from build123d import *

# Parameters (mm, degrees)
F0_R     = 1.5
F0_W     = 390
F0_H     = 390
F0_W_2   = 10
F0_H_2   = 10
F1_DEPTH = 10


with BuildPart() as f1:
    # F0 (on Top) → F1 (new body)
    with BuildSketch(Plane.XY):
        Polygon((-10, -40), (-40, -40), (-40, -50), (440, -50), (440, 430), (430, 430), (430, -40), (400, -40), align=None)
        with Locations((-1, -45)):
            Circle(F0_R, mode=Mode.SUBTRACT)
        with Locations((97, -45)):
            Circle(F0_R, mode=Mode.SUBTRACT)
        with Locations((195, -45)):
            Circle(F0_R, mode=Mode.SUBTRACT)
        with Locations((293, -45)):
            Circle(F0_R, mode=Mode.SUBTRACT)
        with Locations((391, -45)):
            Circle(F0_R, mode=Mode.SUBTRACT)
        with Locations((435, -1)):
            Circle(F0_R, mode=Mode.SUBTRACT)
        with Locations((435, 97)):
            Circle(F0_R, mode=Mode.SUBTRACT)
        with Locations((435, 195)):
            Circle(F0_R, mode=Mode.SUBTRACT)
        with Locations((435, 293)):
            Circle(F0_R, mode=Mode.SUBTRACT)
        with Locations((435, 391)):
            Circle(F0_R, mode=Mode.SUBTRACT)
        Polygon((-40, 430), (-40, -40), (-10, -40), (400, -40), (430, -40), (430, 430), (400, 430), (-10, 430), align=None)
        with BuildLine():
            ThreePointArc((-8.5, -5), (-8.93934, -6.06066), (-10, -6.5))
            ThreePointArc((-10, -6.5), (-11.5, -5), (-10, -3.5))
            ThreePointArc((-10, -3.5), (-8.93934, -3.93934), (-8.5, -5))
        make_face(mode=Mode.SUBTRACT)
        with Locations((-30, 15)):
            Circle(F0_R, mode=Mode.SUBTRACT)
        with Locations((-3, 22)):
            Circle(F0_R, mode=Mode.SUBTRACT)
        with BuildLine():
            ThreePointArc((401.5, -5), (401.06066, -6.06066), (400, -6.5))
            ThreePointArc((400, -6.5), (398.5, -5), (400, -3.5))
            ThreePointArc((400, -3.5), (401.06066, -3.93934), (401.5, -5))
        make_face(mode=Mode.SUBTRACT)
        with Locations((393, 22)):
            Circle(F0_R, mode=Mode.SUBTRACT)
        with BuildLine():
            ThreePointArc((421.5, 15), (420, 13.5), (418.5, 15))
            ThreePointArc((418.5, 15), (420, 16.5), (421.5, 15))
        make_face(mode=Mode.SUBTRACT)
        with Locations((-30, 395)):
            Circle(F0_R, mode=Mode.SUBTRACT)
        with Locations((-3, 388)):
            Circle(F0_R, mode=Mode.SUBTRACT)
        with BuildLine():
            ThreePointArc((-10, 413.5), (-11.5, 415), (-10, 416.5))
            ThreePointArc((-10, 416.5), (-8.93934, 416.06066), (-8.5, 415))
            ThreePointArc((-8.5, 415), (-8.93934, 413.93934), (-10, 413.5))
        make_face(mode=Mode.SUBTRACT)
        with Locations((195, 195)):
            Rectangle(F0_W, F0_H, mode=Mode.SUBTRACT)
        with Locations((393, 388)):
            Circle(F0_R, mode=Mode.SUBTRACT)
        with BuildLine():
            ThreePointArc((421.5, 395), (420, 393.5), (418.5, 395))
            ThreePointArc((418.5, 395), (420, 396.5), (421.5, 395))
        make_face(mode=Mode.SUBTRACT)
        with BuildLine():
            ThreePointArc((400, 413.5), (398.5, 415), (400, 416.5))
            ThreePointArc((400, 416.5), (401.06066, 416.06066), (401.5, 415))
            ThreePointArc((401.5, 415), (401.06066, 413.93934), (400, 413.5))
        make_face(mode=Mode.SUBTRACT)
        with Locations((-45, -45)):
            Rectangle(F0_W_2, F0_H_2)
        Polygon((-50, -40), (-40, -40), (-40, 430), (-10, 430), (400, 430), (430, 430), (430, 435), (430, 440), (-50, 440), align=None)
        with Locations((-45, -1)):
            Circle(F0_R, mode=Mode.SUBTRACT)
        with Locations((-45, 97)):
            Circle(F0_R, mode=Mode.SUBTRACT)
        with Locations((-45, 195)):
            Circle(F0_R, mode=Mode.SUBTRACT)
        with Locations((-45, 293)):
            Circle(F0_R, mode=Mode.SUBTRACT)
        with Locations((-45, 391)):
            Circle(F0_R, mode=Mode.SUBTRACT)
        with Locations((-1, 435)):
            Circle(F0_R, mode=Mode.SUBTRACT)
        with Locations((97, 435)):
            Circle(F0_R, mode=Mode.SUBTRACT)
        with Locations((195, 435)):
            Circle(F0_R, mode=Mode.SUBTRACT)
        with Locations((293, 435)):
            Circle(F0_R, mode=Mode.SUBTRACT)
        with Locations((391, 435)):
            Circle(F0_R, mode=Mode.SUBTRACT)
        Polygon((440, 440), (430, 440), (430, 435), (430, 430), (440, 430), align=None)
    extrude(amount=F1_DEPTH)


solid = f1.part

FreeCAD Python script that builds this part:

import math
import FreeCAD as App
import Part
import Sketcher


def add_polygon(sketch, points):
    """Adds a closed chain of lines whose ends are joined by coincident constraints."""
    first, n = sketch.GeometryCount, len(points)
    for a, b in zip(points, points[1:] + points[:1]):
        sketch.addGeometry(Part.LineSegment(App.Vector(*a, 0), App.Vector(*b, 0)), False)
    for i in range(n):
        sketch.addConstraint(Sketcher.Constraint("Coincident", first + i, 2, first + (i + 1) % n, 1))

doc = App.newDocument("Part")
body = doc.addObject("PartDesign::Body", "Body")

# Sketch on XY plane
sketch1 = doc.addObject("Sketcher::SketchObject", "Sketch")
body.addObject(sketch1)
sketch1.AttachmentSupport = (doc.XY_Plane, [""])
sketch1.MapMode = "FlatFace"
add_polygon(sketch1, [(440, -50), (440, 440), (-50, 440), (-50, -50)])  # lines 0-3
sketch1.addGeometry(Part.Circle(App.Vector(-1, -45, 0), App.Vector(0, 0, 1), 1.5), False)  # 4
sketch1.addGeometry(Part.Circle(App.Vector(-45, -1, 0), App.Vector(0, 0, 1), 1.5), False)  # 5
sketch1.addGeometry(Part.ArcOfCircle(Part.Circle(App.Vector(-10, -5, 0), App.Vector(0, 0, 1), 1.5), math.radians(0), math.radians(90)), False)  # 6
sketch1.addGeometry(Part.ArcOfCircle(Part.Circle(App.Vector(-10, -5, 0), App.Vector(0, 0, 1), 1.5), math.radians(-90), math.radians(0)), False)  # 7
sketch1.addGeometry(Part.ArcOfCircle(Part.Circle(App.Vector(-10, -5, 0), App.Vector(0, 0, 1), 1.5), math.radians(90), math.radians(270)), False)  # 8
sketch1.addGeometry(Part.Circle(App.Vector(-30, 15, 0), App.Vector(0, 0, 1), 1.5), False)  # 9
sketch1.addGeometry(Part.Circle(App.Vector(-3, 22, 0), App.Vector(0, 0, 1), 1.5), False)  # 10
sketch1.addGeometry(Part.Circle(App.Vector(97, -45, 0), App.Vector(0, 0, 1), 1.5), False)  # 11
sketch1.addGeometry(Part.Circle(App.Vector(-45, 97, 0), App.Vector(0, 0, 1), 1.5), False)  # 12
sketch1.addGeometry(Part.Circle(App.Vector(195, -45, 0), App.Vector(0, 0, 1), 1.5), False)  # 13
sketch1.addGeometry(Part.Circle(App.Vector(293, -45, 0), App.Vector(0, 0, 1), 1.5), False)  # 14
sketch1.addGeometry(Part.Circle(App.Vector(391, -45, 0), App.Vector(0, 0, 1), 1.5), False)  # 15
sketch1.addGeometry(Part.ArcOfCircle(Part.Circle(App.Vector(400, -5, 0), App.Vector(0, 0, 1), 1.5), math.radians(0), math.radians(90)), False)  # 16
sketch1.addGeometry(Part.ArcOfCircle(Part.Circle(App.Vector(400, -5, 0), App.Vector(0, 0, 1), 1.5), math.radians(-90), math.radians(0)), False)  # 17
sketch1.addGeometry(Part.ArcOfCircle(Part.Circle(App.Vector(400, -5, 0), App.Vector(0, 0, 1), 1.5), math.radians(90), math.radians(270)), False)  # 18
sketch1.addGeometry(Part.Circle(App.Vector(435, -1, 0), App.Vector(0, 0, 1), 1.5), False)  # 19
sketch1.addGeometry(Part.Circle(App.Vector(393, 22, 0), App.Vector(0, 0, 1), 1.5), False)  # 20
sketch1.addGeometry(Part.Circle(App.Vector(420, 15, 0), App.Vector(0, 0, 1), 1.5), False)  # 21
sketch1.addGeometry(Part.Circle(App.Vector(435, 97, 0), App.Vector(0, 0, 1), 1.5), False)  # 22
sketch1.addGeometry(Part.Circle(App.Vector(-45, 195, 0), App.Vector(0, 0, 1), 1.5), False)  # 23
sketch1.addGeometry(Part.Circle(App.Vector(-45, 293, 0), App.Vector(0, 0, 1), 1.5), False)  # 24
sketch1.addGeometry(Part.Circle(App.Vector(-45, 391, 0), App.Vector(0, 0, 1), 1.5), False)  # 25
sketch1.addGeometry(Part.Circle(App.Vector(-30, 395, 0), App.Vector(0, 0, 1), 1.5), False)  # 26
sketch1.addGeometry(Part.Circle(App.Vector(-3, 388, 0), App.Vector(0, 0, 1), 1.5), False)  # 27
sketch1.addGeometry(Part.ArcOfCircle(Part.Circle(App.Vector(-10, 415, 0), App.Vector(0, 0, 1), 1.5), math.radians(-90), math.radians(0)), False)  # 28
sketch1.addGeometry(Part.ArcOfCircle(Part.Circle(App.Vector(-10, 415, 0), App.Vector(0, 0, 1), 1.5), math.radians(90), math.radians(270)), False)  # 29
sketch1.addGeometry(Part.ArcOfCircle(Part.Circle(App.Vector(-10, 415, 0), App.Vector(0, 0, 1), 1.5), math.radians(0), math.radians(90)), False)  # 30
sketch1.addGeometry(Part.Circle(App.Vector(-1, 435, 0), App.Vector(0, 0, 1), 1.5), False)  # 31
sketch1.addGeometry(Part.Circle(App.Vector(97, 435, 0), App.Vector(0, 0, 1), 1.5), False)  # 32
add_polygon(sketch1, [(390, 0), (0, 0), (0, 390), (390, 390)])  # lines 33-36
sketch1.addGeometry(Part.Circle(App.Vector(435, 195, 0), App.Vector(0, 0, 1), 1.5), False)  # 37
sketch1.addGeometry(Part.Circle(App.Vector(435, 293, 0), App.Vector(0, 0, 1), 1.5), False)  # 38
sketch1.addGeometry(Part.Circle(App.Vector(195, 435, 0), App.Vector(0, 0, 1), 1.5), False)  # 39
sketch1.addGeometry(Part.Circle(App.Vector(293, 435, 0), App.Vector(0, 0, 1), 1.5), False)  # 40
sketch1.addGeometry(Part.Circle(App.Vector(393, 388, 0), App.Vector(0, 0, 1), 1.5), False)  # 41
sketch1.addGeometry(Part.Circle(App.Vector(435, 391, 0), App.Vector(0, 0, 1), 1.5), False)  # 42
sketch1.addGeometry(Part.Circle(App.Vector(420, 395, 0), App.Vector(0, 0, 1), 1.5), False)  # 43
sketch1.addGeometry(Part.ArcOfCircle(Part.Circle(App.Vector(400, 415, 0), App.Vector(0, 0, 1), 1.5), math.radians(-90), math.radians(0)), False)  # 44
sketch1.addGeometry(Part.ArcOfCircle(Part.Circle(App.Vector(400, 415, 0), App.Vector(0, 0, 1), 1.5), math.radians(90), math.radians(270)), False)  # 45
sketch1.addGeometry(Part.ArcOfCircle(Part.Circle(App.Vector(400, 415, 0), App.Vector(0, 0, 1), 1.5), math.radians(0), math.radians(90)), False)  # 46
sketch1.addGeometry(Part.Circle(App.Vector(391, 435, 0), App.Vector(0, 0, 1), 1.5), False)  # 47
sketch1.addConstraint(Sketcher.Constraint("Tangent", 6, 1, 7, 2))
sketch1.addConstraint(Sketcher.Constraint("Tangent", 7, 1, 8, 2))
sketch1.addConstraint(Sketcher.Constraint("Tangent", 8, 1, 6, 2))
sketch1.addConstraint(Sketcher.Constraint("Tangent", 16, 1, 17, 2))
sketch1.addConstraint(Sketcher.Constraint("Tangent", 17, 1, 18, 2))
sketch1.addConstraint(Sketcher.Constraint("Tangent", 18, 1, 16, 2))
sketch1.addConstraint(Sketcher.Constraint("Tangent", 28, 1, 29, 2))
sketch1.addConstraint(Sketcher.Constraint("Tangent", 29, 1, 30, 2))
sketch1.addConstraint(Sketcher.Constraint("Tangent", 30, 1, 28, 2))
sketch1.addConstraint(Sketcher.Constraint("Tangent", 44, 1, 45, 2))
sketch1.addConstraint(Sketcher.Constraint("Tangent", 45, 1, 46, 2))
sketch1.addConstraint(Sketcher.Constraint("Tangent", 46, 1, 44, 2))
sketch1.addConstraint(Sketcher.Constraint("Vertical", 0))
sketch1.addConstraint(Sketcher.Constraint("Horizontal", 1))
sketch1.addConstraint(Sketcher.Constraint("Vertical", 2))
sketch1.addConstraint(Sketcher.Constraint("Horizontal", 3))
sketch1.addConstraint(Sketcher.Constraint("Horizontal", 33))
sketch1.addConstraint(Sketcher.Constraint("Vertical", 34))
sketch1.addConstraint(Sketcher.Constraint("Horizontal", 35))
sketch1.addConstraint(Sketcher.Constraint("Vertical", 36))
sketch1.addConstraint(Sketcher.Constraint("Coincident", 33, 2, -1, 1))
sketch1.addConstraint(Sketcher.Constraint("Equal", 4, 5))
sketch1.addConstraint(Sketcher.Constraint("Equal", 5, 6))
sketch1.addConstraint(Sketcher.Constraint("Equal", 8, 9))
sketch1.addConstraint(Sketcher.Constraint("Equal", 9, 10))
sketch1.addConstraint(Sketcher.Constraint("Equal", 10, 11))
sketch1.addConstraint(Sketcher.Constraint("Equal", 11, 12))
sketch1.addConstraint(Sketcher.Constraint("Equal", 12, 13))
sketch1.addConstraint(Sketcher.Constraint("Equal", 13, 14))
sketch1.addConstraint(Sketcher.Constraint("Equal", 14, 15))
sketch1.addConstraint(Sketcher.Constraint("Equal", 15, 16))
sketch1.addConstraint(Sketcher.Constraint("Equal", 18, 19))
sketch1.addConstraint(Sketcher.Constraint("Equal", 19, 20))
sketch1.addConstraint(Sketcher.Constraint("Equal", 20, 21))
sketch1.addConstraint(Sketcher.Constraint("Equal", 21, 22))
sketch1.addConstraint(Sketcher.Constraint("Equal", 22, 23))
sketch1.addConstraint(Sketcher.Constraint("Equal", 23, 24))
sketch1.addConstraint(Sketcher.Constraint("Equal", 24, 25))
sketch1.addConstraint(Sketcher.Constraint("Equal", 25, 26))
sketch1.addConstraint(Sketcher.Constraint("Equal", 26, 27))
sketch1.addConstraint(Sketcher.Constraint("Equal", 27, 28))
sketch1.addConstraint(Sketcher.Constraint("Equal", 30, 31))
sketch1.addConstraint(Sketcher.Constraint("Equal", 31, 32))
sketch1.addConstraint(Sketcher.Constraint("Equal", 32, 37))
sketch1.addConstraint(Sketcher.Constraint("Equal", 37, 38))
sketch1.addConstraint(Sketcher.Constraint("Equal", 38, 39))
sketch1.addConstraint(Sketcher.Constraint("Equal", 39, 40))
sketch1.addConstraint(Sketcher.Constraint("Equal", 40, 41))
sketch1.addConstraint(Sketcher.Constraint("Equal", 41, 42))
sketch1.addConstraint(Sketcher.Constraint("Equal", 42, 43))
sketch1.addConstraint(Sketcher.Constraint("Equal", 43, 44))
sketch1.addConstraint(Sketcher.Constraint("Equal", 46, 47))
sketch1.addConstraint(Sketcher.Constraint("Horizontal", 4, 3, 11, 3))
sketch1.addConstraint(Sketcher.Constraint("Horizontal", 11, 3, 13, 3))
sketch1.addConstraint(Sketcher.Constraint("Horizontal", 13, 3, 14, 3))
sketch1.addConstraint(Sketcher.Constraint("Horizontal", 14, 3, 15, 3))
sketch1.addConstraint(Sketcher.Constraint("Horizontal", 8, 3, 16, 3))
sketch1.addConstraint(Sketcher.Constraint("Horizontal", 5, 3, 19, 3))
sketch1.addConstraint(Sketcher.Constraint("Horizontal", 10, 3, 20, 3))
sketch1.addConstraint(Sketcher.Constraint("Horizontal", 9, 3, 21, 3))
sketch1.addConstraint(Sketcher.Constraint("Horizontal", 12, 3, 22, 3))
sketch1.addConstraint(Sketcher.Constraint("Horizontal", 31, 3, 32, 3))
sketch1.addConstraint(Sketcher.Constraint("Horizontal", 23, 3, 37, 3))
sketch1.addConstraint(Sketcher.Constraint("Horizontal", 24, 3, 38, 3))
sketch1.addConstraint(Sketcher.Constraint("Horizontal", 32, 3, 39, 3))
sketch1.addConstraint(Sketcher.Constraint("Horizontal", 39, 3, 40, 3))
sketch1.addConstraint(Sketcher.Constraint("Horizontal", 27, 3, 41, 3))
sketch1.addConstraint(Sketcher.Constraint("Horizontal", 25, 3, 42, 3))
sketch1.addConstraint(Sketcher.Constraint("Horizontal", 26, 3, 43, 3))
sketch1.addConstraint(Sketcher.Constraint("Horizontal", 30, 3, 44, 3))
sketch1.addConstraint(Sketcher.Constraint("Horizontal", 40, 3, 47, 3))
sketch1.addConstraint(Sketcher.Constraint("Horizontal", 18, 3, 6, 1))
sketch1.addConstraint(Sketcher.Constraint("Horizontal", 6, 1, 16, 1))
sketch1.addConstraint(Sketcher.Constraint("Horizontal", 46, 3, 30, 1))
sketch1.addConstraint(Sketcher.Constraint("Horizontal", 30, 1, 46, 1))
sketch1.addConstraint(Sketcher.Constraint("Vertical", 5, 3, 12, 3))
sketch1.addConstraint(Sketcher.Constraint("Vertical", 19, 3, 22, 3))
sketch1.addConstraint(Sketcher.Constraint("Vertical", 12, 3, 23, 3))
sketch1.addConstraint(Sketcher.Constraint("Vertical", 23, 3, 24, 3))
sketch1.addConstraint(Sketcher.Constraint("Vertical", 24, 3, 25, 3))
sketch1.addConstraint(Sketcher.Constraint("Vertical", 9, 3, 26, 3))
sketch1.addConstraint(Sketcher.Constraint("Vertical", 10, 3, 27, 3))
sketch1.addConstraint(Sketcher.Constraint("Vertical", 8, 3, 28, 3))
sketch1.addConstraint(Sketcher.Constraint("Vertical", 4, 3, 31, 3))
sketch1.addConstraint(Sketcher.Constraint("Vertical", 11, 3, 32, 3))
sketch1.addConstraint(Sketcher.Constraint("Vertical", 22, 3, 37, 3))
sketch1.addConstraint(Sketcher.Constraint("Vertical", 37, 3, 38, 3))
sketch1.addConstraint(Sketcher.Constraint("Vertical", 13, 3, 39, 3))
sketch1.addConstraint(Sketcher.Constraint("Vertical", 14, 3, 40, 3))
sketch1.addConstraint(Sketcher.Constraint("Vertical", 20, 3, 41, 3))
sketch1.addConstraint(Sketcher.Constraint("Vertical", 38, 3, 42, 3))
sketch1.addConstraint(Sketcher.Constraint("Vertical", 21, 3, 43, 3))
sketch1.addConstraint(Sketcher.Constraint("Vertical", 18, 3, 44, 3))
sketch1.addConstraint(Sketcher.Constraint("Vertical", 15, 3, 47, 3))
sketch1.addConstraint(Sketcher.Constraint("Vertical", 30, 3, 7, 1))
sketch1.addConstraint(Sketcher.Constraint("Vertical", 7, 1, 8, 1))
sketch1.addConstraint(Sketcher.Constraint("Vertical", 46, 3, 17, 1))
sketch1.addConstraint(Sketcher.Constraint("Vertical", 17, 1, 18, 1))
sketch1.addConstraint(Sketcher.Constraint("Vertical", 8, 1, 28, 1))
sketch1.addConstraint(Sketcher.Constraint("Vertical", 28, 1, 29, 1))
sketch1.addConstraint(Sketcher.Constraint("Vertical", 18, 1, 44, 1))
sketch1.addConstraint(Sketcher.Constraint("Vertical", 44, 1, 45, 1))
sketch1.addConstraint(Sketcher.Constraint("Equal", 3, 0))
sketch1.addConstraint(Sketcher.Constraint("Equal", 35, 34))
sketch1.addConstraint(Sketcher.Constraint("Diameter", 4, 3.0))
sketch1.addConstraint(Sketcher.Constraint("DistanceX", 1, 2, 1, 1, 490.0))
sketch1.addConstraint(Sketcher.Constraint("DistanceX", 33, 2, 33, 1, 390.0))
sketch1.addConstraint(Sketcher.Constraint("DistanceX", 4, 3, -1, 1, 1.0))
sketch1.addConstraint(Sketcher.Constraint("DistanceY", 4, 3, -1, 1, 45.0))
sketch1.addConstraint(Sketcher.Constraint("DistanceX", 5, 3, -1, 1, 45.0))
sketch1.addConstraint(Sketcher.Constraint("DistanceY", 5, 3, -1, 1, 1.0))
sketch1.addConstraint(Sketcher.Constraint("DistanceX", 6, 3, -1, 1, 10.000001))
sketch1.addConstraint(Sketcher.Constraint("DistanceY", 6, 3, -1, 1, 5.000001))
sketch1.addConstraint(Sketcher.Constraint("DistanceX", 9, 3, -1, 1, 30.0))
sketch1.addConstraint(Sketcher.Constraint("DistanceY", -1, 1, 9, 3, 15.0))
sketch1.addConstraint(Sketcher.Constraint("DistanceX", 10, 3, -1, 1, 3.0))
sketch1.addConstraint(Sketcher.Constraint("DistanceY", -1, 1, 10, 3, 22.0))
sketch1.addConstraint(Sketcher.Constraint("DistanceX", -1, 1, 11, 3, 97.0))
sketch1.addConstraint(Sketcher.Constraint("DistanceY", -1, 1, 12, 3, 97.0))
sketch1.addConstraint(Sketcher.Constraint("DistanceX", -1, 1, 13, 3, 195.0))
sketch1.addConstraint(Sketcher.Constraint("DistanceX", -1, 1, 14, 3, 293.0))
sketch1.addConstraint(Sketcher.Constraint("DistanceX", -1, 1, 15, 3, 391.0))
sketch1.addConstraint(Sketcher.Constraint("DistanceX", -1, 1, 16, 3, 399.999999))
sketch1.addConstraint(Sketcher.Constraint("DistanceX", -1, 1, 19, 3, 435.0))
sketch1.addConstraint(Sketcher.Constraint("DistanceX", -1, 1, 20, 3, 393.0))
sketch1.addConstraint(Sketcher.Constraint("DistanceX", -1, 1, 21, 3, 420.0))
sketch1.addConstraint(Sketcher.Constraint("DistanceY", -1, 1, 23, 3, 195.0))
sketch1.addConstraint(Sketcher.Constraint("DistanceY", -1, 1, 24, 3, 293.0))
sketch1.addConstraint(Sketcher.Constraint("DistanceY", -1, 1, 25, 3, 391.0))
sketch1.addConstraint(Sketcher.Constraint("DistanceY", -1, 1, 26, 3, 395.0))
sketch1.addConstraint(Sketcher.Constraint("DistanceY", -1, 1, 27, 3, 388.0))
sketch1.addConstraint(Sketcher.Constraint("DistanceY", -1, 1, 28, 3, 415.000001))
sketch1.addConstraint(Sketcher.Constraint("DistanceY", -1, 1, 31, 3, 435.0))
sketch1.addConstraint(Sketcher.Constraint("DistanceX", -1, 1, 0, 2, 440.0))
sketch1.addConstraint(Sketcher.Constraint("DistanceY", -1, 1, 0, 2, 440.0))
pad1 = doc.addObject("PartDesign::Pad", "Pad")
body.addObject(pad1)
pad1.Profile = sketch1
pad1.Length = 10

doc.recompute()
